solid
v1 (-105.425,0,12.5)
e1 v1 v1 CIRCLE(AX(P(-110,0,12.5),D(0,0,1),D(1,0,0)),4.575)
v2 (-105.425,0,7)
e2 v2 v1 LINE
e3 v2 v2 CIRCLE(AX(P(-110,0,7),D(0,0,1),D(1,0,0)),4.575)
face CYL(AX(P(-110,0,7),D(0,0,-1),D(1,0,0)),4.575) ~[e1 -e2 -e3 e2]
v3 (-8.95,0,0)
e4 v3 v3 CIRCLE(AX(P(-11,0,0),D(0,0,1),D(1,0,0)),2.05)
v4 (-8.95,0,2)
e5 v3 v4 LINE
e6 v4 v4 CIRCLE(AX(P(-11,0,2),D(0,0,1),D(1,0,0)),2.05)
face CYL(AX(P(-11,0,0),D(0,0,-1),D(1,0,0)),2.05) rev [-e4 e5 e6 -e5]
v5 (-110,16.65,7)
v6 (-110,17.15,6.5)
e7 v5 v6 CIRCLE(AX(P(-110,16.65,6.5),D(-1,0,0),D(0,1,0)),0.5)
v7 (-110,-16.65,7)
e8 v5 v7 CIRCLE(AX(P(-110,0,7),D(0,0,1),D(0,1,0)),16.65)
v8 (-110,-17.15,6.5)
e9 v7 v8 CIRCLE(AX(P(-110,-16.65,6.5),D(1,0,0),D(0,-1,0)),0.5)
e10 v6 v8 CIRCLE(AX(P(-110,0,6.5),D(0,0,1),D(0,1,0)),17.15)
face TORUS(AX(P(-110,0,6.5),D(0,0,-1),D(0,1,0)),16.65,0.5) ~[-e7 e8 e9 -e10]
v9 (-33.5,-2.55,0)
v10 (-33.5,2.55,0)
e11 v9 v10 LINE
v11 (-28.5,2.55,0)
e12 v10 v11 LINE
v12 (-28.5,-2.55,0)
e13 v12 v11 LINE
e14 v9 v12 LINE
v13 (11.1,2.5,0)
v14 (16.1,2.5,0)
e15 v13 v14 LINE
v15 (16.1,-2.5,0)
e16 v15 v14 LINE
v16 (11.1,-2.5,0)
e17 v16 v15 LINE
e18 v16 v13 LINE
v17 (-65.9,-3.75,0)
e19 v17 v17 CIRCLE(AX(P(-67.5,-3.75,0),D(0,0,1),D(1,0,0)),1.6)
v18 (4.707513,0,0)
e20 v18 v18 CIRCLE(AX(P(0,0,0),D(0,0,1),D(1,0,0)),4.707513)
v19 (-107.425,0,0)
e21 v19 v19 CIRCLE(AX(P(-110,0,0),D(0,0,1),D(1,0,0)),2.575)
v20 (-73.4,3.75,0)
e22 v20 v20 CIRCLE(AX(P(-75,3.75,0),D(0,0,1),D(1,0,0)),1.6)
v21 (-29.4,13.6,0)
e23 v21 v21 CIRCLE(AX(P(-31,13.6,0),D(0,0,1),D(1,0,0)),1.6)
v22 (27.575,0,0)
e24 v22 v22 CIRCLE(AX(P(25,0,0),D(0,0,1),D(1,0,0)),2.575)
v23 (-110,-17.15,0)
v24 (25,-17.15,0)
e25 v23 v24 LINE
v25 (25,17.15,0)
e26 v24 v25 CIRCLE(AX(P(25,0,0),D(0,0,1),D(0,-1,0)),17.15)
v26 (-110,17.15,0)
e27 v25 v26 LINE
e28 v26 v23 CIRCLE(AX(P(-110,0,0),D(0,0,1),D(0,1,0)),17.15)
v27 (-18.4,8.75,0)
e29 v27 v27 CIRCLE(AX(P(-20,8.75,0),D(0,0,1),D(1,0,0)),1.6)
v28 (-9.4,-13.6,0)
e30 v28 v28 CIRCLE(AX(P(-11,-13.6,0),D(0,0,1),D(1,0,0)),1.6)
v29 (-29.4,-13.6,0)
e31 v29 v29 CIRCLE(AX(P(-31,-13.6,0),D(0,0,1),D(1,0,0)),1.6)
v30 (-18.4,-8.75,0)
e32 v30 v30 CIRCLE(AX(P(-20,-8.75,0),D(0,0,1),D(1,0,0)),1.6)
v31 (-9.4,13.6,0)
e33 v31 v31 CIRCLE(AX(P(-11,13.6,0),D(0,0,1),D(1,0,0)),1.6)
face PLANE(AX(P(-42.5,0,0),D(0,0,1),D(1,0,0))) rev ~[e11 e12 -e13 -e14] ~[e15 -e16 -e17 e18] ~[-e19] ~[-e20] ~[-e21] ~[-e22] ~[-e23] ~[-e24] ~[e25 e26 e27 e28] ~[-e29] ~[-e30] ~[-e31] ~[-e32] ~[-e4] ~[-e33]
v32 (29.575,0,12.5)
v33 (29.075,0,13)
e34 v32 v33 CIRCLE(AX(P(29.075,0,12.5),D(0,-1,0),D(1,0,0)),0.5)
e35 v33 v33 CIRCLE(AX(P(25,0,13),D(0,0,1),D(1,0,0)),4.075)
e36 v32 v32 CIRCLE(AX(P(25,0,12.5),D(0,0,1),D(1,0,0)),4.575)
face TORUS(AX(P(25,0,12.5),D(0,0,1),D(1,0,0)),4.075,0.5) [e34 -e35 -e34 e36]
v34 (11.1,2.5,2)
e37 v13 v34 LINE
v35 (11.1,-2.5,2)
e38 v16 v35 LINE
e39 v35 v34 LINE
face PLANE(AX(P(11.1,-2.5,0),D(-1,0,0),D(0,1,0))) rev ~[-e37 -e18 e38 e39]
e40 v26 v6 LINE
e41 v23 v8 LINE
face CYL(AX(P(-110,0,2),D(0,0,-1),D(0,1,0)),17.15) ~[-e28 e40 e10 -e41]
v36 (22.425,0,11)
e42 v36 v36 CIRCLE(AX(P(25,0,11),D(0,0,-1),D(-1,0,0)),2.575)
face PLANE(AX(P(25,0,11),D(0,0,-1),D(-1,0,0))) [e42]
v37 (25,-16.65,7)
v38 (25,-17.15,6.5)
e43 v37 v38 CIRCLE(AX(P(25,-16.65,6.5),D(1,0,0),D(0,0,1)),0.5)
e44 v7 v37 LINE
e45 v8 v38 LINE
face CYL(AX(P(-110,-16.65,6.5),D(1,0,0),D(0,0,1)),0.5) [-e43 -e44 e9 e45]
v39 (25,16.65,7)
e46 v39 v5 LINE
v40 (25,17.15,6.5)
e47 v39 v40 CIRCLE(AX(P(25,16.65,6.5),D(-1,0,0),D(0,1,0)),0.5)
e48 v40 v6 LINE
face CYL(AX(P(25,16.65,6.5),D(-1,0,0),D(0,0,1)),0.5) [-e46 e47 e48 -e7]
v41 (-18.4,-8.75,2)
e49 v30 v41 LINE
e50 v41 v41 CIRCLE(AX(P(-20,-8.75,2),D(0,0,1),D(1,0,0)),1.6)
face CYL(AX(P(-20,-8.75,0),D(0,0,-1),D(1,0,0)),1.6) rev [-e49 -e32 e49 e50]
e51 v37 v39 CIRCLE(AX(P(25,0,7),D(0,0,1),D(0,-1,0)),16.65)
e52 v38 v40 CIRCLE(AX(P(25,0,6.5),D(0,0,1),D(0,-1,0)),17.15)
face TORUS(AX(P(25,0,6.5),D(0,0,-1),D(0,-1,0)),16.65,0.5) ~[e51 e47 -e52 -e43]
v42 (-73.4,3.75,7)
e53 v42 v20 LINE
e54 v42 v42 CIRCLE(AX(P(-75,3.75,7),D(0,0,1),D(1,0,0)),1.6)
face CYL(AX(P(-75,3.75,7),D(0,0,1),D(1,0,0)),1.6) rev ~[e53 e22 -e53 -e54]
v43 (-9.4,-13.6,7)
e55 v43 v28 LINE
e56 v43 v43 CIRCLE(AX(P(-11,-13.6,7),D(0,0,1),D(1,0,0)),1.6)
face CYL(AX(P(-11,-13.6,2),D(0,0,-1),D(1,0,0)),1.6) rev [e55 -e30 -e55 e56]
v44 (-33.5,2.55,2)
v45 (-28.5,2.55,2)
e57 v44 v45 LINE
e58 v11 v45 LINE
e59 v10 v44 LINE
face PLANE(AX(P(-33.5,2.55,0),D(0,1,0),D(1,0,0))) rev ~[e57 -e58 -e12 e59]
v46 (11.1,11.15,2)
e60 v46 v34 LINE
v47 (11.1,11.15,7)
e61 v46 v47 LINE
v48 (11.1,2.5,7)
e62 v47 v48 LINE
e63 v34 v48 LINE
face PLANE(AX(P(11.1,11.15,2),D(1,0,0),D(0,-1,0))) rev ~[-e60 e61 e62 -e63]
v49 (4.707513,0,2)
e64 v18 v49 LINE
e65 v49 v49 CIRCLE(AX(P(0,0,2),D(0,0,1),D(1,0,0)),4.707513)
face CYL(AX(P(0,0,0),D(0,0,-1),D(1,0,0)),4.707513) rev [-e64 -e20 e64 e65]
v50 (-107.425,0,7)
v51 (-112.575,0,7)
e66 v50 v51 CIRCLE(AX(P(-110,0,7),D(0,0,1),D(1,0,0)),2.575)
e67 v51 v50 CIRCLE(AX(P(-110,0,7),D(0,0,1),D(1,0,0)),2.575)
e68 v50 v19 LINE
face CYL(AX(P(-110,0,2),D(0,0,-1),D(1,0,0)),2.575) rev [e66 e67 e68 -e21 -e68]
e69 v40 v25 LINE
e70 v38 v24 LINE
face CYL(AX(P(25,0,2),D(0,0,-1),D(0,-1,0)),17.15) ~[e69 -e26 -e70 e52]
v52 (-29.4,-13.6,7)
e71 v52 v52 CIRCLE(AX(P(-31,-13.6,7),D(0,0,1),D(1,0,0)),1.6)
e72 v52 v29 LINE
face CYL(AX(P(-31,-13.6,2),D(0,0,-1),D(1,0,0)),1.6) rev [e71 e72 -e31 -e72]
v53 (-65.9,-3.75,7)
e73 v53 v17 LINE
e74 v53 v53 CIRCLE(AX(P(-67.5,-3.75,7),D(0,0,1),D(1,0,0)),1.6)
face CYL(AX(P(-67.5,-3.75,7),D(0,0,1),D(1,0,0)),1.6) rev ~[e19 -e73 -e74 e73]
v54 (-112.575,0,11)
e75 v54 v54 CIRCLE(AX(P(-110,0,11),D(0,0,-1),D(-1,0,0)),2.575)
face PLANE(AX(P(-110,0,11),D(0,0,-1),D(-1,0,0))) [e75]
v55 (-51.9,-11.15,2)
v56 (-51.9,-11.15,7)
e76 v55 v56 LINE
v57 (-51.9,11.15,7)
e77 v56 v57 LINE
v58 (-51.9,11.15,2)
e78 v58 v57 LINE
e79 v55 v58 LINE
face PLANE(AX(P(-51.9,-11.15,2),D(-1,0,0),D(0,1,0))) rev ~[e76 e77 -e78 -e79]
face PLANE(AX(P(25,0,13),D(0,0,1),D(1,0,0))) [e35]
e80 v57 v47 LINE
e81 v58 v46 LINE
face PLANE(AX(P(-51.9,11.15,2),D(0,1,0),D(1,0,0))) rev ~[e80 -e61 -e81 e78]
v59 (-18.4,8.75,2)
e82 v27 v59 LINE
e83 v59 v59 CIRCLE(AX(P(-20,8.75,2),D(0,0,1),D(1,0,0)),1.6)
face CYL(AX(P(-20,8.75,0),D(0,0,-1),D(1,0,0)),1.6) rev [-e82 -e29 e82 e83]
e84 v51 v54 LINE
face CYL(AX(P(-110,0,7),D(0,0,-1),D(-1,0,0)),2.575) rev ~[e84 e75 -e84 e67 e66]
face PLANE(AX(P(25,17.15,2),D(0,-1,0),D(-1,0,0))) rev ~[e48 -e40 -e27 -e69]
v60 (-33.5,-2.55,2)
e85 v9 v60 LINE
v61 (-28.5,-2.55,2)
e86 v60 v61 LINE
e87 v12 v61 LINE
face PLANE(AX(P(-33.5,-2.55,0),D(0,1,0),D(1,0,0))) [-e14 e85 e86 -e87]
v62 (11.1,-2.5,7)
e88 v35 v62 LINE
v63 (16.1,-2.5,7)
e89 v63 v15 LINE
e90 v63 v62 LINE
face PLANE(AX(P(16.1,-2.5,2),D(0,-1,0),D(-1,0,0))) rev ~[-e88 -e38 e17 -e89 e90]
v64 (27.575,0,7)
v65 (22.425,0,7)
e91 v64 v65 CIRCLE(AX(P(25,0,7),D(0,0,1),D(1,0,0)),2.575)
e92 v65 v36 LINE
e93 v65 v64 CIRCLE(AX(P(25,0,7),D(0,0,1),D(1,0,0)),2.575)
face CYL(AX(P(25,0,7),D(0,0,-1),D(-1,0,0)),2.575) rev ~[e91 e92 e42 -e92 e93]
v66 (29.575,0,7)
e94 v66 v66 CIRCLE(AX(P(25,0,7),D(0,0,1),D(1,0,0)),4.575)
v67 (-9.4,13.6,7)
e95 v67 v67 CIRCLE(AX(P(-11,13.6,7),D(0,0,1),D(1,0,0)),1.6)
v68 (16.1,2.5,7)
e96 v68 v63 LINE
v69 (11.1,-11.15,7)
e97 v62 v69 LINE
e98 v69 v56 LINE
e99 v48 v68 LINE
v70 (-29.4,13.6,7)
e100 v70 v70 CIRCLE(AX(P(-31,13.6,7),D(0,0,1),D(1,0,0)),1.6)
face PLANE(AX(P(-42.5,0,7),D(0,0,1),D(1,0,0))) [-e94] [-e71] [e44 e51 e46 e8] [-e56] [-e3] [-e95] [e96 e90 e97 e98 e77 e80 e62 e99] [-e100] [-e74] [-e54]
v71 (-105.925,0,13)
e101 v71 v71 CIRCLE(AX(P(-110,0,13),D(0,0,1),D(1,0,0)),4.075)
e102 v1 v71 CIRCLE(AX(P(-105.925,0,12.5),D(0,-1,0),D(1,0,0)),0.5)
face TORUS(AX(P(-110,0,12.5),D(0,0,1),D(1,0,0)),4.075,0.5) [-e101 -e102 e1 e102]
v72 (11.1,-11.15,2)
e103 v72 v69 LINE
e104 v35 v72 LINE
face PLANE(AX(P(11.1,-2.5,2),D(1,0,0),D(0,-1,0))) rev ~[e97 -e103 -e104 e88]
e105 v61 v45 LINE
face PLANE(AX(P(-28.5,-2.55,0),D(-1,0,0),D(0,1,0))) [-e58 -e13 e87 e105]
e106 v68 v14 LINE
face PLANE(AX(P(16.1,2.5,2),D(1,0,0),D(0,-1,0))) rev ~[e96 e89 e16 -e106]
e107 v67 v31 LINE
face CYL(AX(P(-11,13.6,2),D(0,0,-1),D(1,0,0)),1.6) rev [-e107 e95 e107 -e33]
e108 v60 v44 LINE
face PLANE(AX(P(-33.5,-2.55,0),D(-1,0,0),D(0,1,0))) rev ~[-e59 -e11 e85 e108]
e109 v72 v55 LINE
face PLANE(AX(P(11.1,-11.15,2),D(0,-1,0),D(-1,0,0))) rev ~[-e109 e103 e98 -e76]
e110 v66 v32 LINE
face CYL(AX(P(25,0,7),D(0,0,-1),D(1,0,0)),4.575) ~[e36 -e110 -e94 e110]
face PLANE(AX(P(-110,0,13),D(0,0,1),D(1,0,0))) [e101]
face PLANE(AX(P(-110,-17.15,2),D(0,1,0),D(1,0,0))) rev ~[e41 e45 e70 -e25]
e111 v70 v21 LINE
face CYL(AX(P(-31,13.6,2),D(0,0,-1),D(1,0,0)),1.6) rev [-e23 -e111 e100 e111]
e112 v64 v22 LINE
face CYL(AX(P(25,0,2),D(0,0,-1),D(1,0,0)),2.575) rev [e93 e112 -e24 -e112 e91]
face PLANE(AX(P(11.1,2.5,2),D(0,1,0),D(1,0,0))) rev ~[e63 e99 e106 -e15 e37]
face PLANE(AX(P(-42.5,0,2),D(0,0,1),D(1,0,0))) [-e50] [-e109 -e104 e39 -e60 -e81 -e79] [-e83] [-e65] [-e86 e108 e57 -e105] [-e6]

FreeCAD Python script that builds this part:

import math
import FreeCAD as App
import Part
import Sketcher
Q = App.Units.Quantity


def edges_at(feature, points):
    """Names of the edges that pass closest to the given points."""
    edges = feature.Shape.Edges
    near = lambda p: min(range(len(edges)), key=lambda i: edges[i].distToShape(Part.Vertex(*p))[0])
    return sorted({f"Edge{near(p) + 1}" for p in points})


def add_polygon(sketch, points):
    """Adds a closed chain of lines whose ends are joined by coincident constraints."""
    first, n = sketch.GeometryCount, len(points)
    for a, b in zip(points, points[1:] + points[:1]):
        sketch.addGeometry(Part.LineSegment(App.Vector(*a, 0), App.Vector(*b, 0)), False)
    for i in range(n):
        sketch.addConstraint(Sketcher.Constraint("Coincident", first + i, 2, first + (i + 1) % n, 1))

doc = App.newDocument("Part")
params = doc.addObject("Spreadsheet::Sheet", "Params")
for row, (alias, value) in enumerate([
    ("sketch1_diameter", "3.2 mm"),
    ("sketch1_diameter2", "4.1 mm"),
    ("sketch1_diameter3", "5.15 mm"),
    ("sketch1_width", "135 mm"),
    ("sketch1_width2", "5 mm"),
    ("pad1_length", "2 mm"),
    ("sketch2_diameter", "3.2 mm"),
    ("sketch2_diameter2", "5.15 mm"),
    ("sketch2_width", "135 mm"),
    ("sketch2_width2", "63 mm"),
    ("sketch2_width3", "5 mm"),
    ("pad2_length", "5 mm"),
    ("sketch3_diameter", "3.2 mm"),
    ("sketch4_diameter", "9.15 mm"),
    ("pad3_length", "6 mm"),
    ("sketch5_diameter", "5.15 mm"),
    ("pocket2_length", "4 mm"),
    ("fillet_radius", "0.5 mm"),
], start=1):
    params.set(f"A{row}", alias)
    params.set(f"B{row}", "=" + value)
    params.setAlias(f"B{row}", alias)

body = doc.addObject("PartDesign::Body", "Body")

sketch1 = body.newObject("Sketcher::SketchObject", "Sketch")
sketch1.AttachmentSupport = (doc.getObject("XY_Plane"), [""])
sketch1.MapMode = "FlatFace"
sketch1.addGeometry(Part.LineSegment(App.Vector(25, 17.15, 0), App.Vector(-110, 17.15, 0)), False)
sketch1.addGeometry(Part.ArcOfCircle(Part.Circle(App.Vector(-110, 0, 0), App.Vector(0, 0, 1), 17.15), math.radians(90), math.radians(270)), False)
sketch1.addGeometry(Part.LineSegment(App.Vector(-110, -17.15, 0), App.Vector(25, -17.15, 0)), False)
sketch1.addGeometry(Part.ArcOfCircle(Part.Circle(App.Vector(25, 0, 0), App.Vector(0, 0, 1), 17.15), math.radians(-90), math.radians(90)), False)
sketch1.addGeometry(Part.Circle(App.Vector(-110, 0, 0), App.Vector(0, 0, 1), 2.575), False)
sketch1.addGeometry(Part.Circle(App.Vector(-31, -13.6, 0), App.Vector(0, 0, 1), 1.6), False)
sketch1.addGeometry(Part.Circle(App.Vector(-11, -13.6, 0), App.Vector(0, 0, 1), 1.6), False)
sketch1.addGeometry(Part.Circle(App.Vector(-20, -8.75, 0), App.Vector(0, 0, 1), 1.6), False)
add_polygon(sketch1, [(-28.5, -2.55), (-33.5, -2.55), (-33.5, 2.55), (-28.5, 2.55)])
sketch1.addGeometry(Part.Circle(App.Vector(-11, 0, 0), App.Vector(0, 0, 1), 2.05), False)
sketch1.addGeometry(Part.Circle(App.Vector(0, 0, 0), App.Vector(0, 0, 1), 4.707513), False)
add_polygon(sketch1, [(16.1, -2.5), (11.1, -2.5), (11.1, 2.5), (16.1, 2.5)])
sketch1.addGeometry(Part.Circle(App.Vector(25, 0, 0), App.Vector(0, 0, 1), 2.575), False)
sketch1.addGeometry(Part.Circle(App.Vector(-20, 8.75, 0), App.Vector(0, 0, 1), 1.6), False)
sketch1.addGeometry(Part.Circle(App.Vector(-31, 13.6, 0), App.Vector(0, 0, 1), 1.6), False)
sketch1.addGeometry(Part.Circle(App.Vector(-11, 13.6, 0), App.Vector(0, 0, 1), 1.6), False)
sketch1.addConstraint([
    Sketcher.Constraint("Tangent", 0, 2, 1, 1),
    Sketcher.Constraint("Tangent", 1, 2, 2, 1),
    Sketcher.Constraint("Tangent", 2, 2, 3, 1),
    Sketcher.Constraint("Tangent", 3, 2, 0, 1),
    Sketcher.Constraint("Horizontal", 0),
    Sketcher.Constraint("Horizontal", 2),
    Sketcher.Constraint("Horizontal", 8),
    Sketcher.Constraint("Vertical", 9),
    Sketcher.Constraint("Horizontal", 10),
    Sketcher.Constraint("Vertical", 11),
    Sketcher.Constraint("Horizontal", 14),
    Sketcher.Constraint("Vertical", 15),
    Sketcher.Constraint("Horizontal", 16),
    Sketcher.Constraint("Vertical", 17),
    Sketcher.Constraint("Coincident", 13, 3, -1, 1),
    Sketcher.Constraint("Coincident", 4, 3, 1, 3),
    Sketcher.Constraint("Coincident", 18, 3, 3, 3),
    Sketcher.Constraint("Equal", 5, 6),
    Sketcher.Constraint("Equal", 6, 7),
    Sketcher.Constraint("Equal", 4, 18),
    Sketcher.Constraint("Equal", 7, 19),
    Sketcher.Constraint("Equal", 19, 20),
    Sketcher.Constraint("Equal", 20, 21),
    Sketcher.Constraint("Symmetric", 7, 3, 19, 3, -1),
    Sketcher.Constraint("Symmetric", 5, 3, 20, 3, -1),
    Sketcher.Constraint("Symmetric", 6, 3, 21, 3, -1),
    Sketcher.Constraint("PointOnObject", 1, 3, -1),
    Sketcher.Constraint("PointOnObject", 12, 3, -1),
    Sketcher.Constraint("Horizontal", 5, 3, 6, 3),
    Sketcher.Constraint("Vertical", 6, 3, 12, 3),
    Sketcher.Constraint("Equal", 10, 14),
    Sketcher.Constraint("Equal", 16, 15),
    Sketcher.Constraint("Diameter", 5, Q("3.2 mm")),
    Sketcher.Constraint("Diameter", 12, Q("4.1 mm")),
    Sketcher.Constraint("Diameter", 4, Q("5.15 mm")),
    Sketcher.Constraint("DistanceX", 0, 2, 0, 1, Q("135 mm")),
    Sketcher.Constraint("DistanceX", 8, 2, 8, 1, Q("5 mm")),
    Sketcher.Constraint("Radius", 1, Q("17.15 mm")),
    Sketcher.Constraint("DistanceY", 9, 1, 9, 2, Q("5.1 mm")),
    Sketcher.Constraint("DistanceX", 1, 3, -1, 1, Q("110 mm")),
    Sketcher.Constraint("DistanceX", 5, 3, -1, 1, Q("31 mm")),
    Sketcher.Constraint("DistanceX", 6, 3, -1, 1, Q("11 mm")),
    Sketcher.Constraint("DistanceX", 7, 3, -1, 1, Q("20 mm")),
    Sketcher.Constraint("DistanceY", 5, 3, -1, 1, Q("13.6 mm")),
    Sketcher.Constraint("DistanceX", 8, 2, -1, 1, Q("33.5 mm")),
    Sketcher.Constraint("DistanceX", -1, 1, 14, 2, Q("11.1 mm")),
    Sketcher.Constraint("DistanceY", 14, 2, -1, 1, Q("2.5 mm")),
    Sketcher.Constraint("DistanceY", 7, 3, 19, 3, Q("17.5 mm")),
    Sketcher.Constraint("DistanceY", 7, 3, 8, 2, Q("6.2 mm")),
    Sketcher.Constraint("Diameter", 13, Q("9.415025 mm")),
])
sketch1.setExpression("Constraints[40]", "Params.sketch1_diameter")
sketch1.setExpression("Constraints[41]", "Params.sketch1_diameter2")
sketch1.setExpression("Constraints[42]", "Params.sketch1_diameter3")
sketch1.setExpression("Constraints[43]", "Params.sketch1_width")
sketch1.setExpression("Constraints[44]", "Params.sketch1_width2")
pad1 = body.newObject("PartDesign::Pad", "Pad")
pad1.Profile = sketch1
pad1.setExpression("Length", "Params.pad1_length")

sketch2 = body.newObject("Sketcher::SketchObject", "Sketch001")
sketch2.AttachmentSupport = (doc.getObject("XY_Plane"), [""])
sketch2.MapMode = "FlatFace"
sketch2.AttachmentOffset = App.Placement(App.Vector(0, 0, 2), App.Rotation())
sketch2.addGeometry(Part.LineSegment(App.Vector(25, 17.15, 0), App.Vector(-110, 17.15, 0)), False)
sketch2.addGeometry(Part.ArcOfCircle(Part.Circle(App.Vector(-110, 0, 0), App.Vector(0, 0, 1), 17.15), math.radians(90), math.radians(270)), False)
sketch2.addGeometry(Part.LineSegment(App.Vector(-110, -17.15, 0), App.Vector(25, -17.15, 0)), False)
sketch2.addGeometry(Part.ArcOfCircle(Part.Circle(App.Vector(25, 0, 0), App.Vector(0, 0, 1), 17.15), math.radians(-90), math.radians(90)), False)
sketch2.addGeometry(Part.Circle(App.Vector(-110, 0, 0), App.Vector(0, 0, 1), 2.575), False)
sketch2.addGeometry(Part.Circle(App.Vector(-31, -13.6, 0), App.Vector(0, 0, 1), 1.6), False)
sketch2.addGeometry(Part.Circle(App.Vector(-11, -13.6, 0), App.Vector(0, 0, 1), 1.6), False)
sketch2.addGeometry(Part.Circle(App.Vector(25, 0, 0), App.Vector(0, 0, 1), 2.575), False)
add_polygon(sketch2, [(11.1, -11.15), (-51.9, -11.15), (-51.9, 11.15), (11.1, 11.15), (11.1, 2.5), (16.1, 2.5), (16.1, -2.5), (11.1, -2.5)])
sketch2.addGeometry(Part.Circle(App.Vector(-31, 13.6, 0), App.Vector(0, 0, 1), 1.6), False)
sketch2.addGeometry(Part.Circle(App.Vector(-11, 13.6, 0), App.Vector(0, 0, 1), 1.6), False)
sketch2.addConstraint([
    Sketcher.Constraint("Tangent", 0, 2, 1, 1),
    Sketcher.Constraint("Tangent", 1, 2, 2, 1),
    Sketcher.Constraint("Tangent", 2, 2, 3, 1),
    Sketcher.Constraint("Tangent", 3, 2, 0, 1),
    Sketcher.Constraint("Horizontal", 0),
    Sketcher.Constraint("Horizontal", 2),
    Sketcher.Constraint("Horizontal", 8),
    Sketcher.Constraint("Vertical", 9),
    Sketcher.Constraint("Horizontal", 10),
    Sketcher.Constraint("Vertical", 11),
    Sketcher.Constraint("Horizontal", 12),
    Sketcher.Constraint("Vertical", 13),
    Sketcher.Constraint("Horizontal", 14),
    Sketcher.Constraint("Vertical", 15),
    Sketcher.Constraint("Coincident", 4, 3, 1, 3),
    Sketcher.Constraint("Coincident", 7, 3, 3, 3),
    Sketcher.Constraint("Equal", 5, 6),
    Sketcher.Constraint("Equal", 4, 7),
    Sketcher.Constraint("Equal", 6, 16),
    Sketcher.Constraint("Equal", 16, 17),
    Sketcher.Constraint("Symmetric", 5, 3, 16, 3, -1),
    Sketcher.Constraint("Symmetric", 6, 3, 17, 3, -1),
    Sketcher.Constraint("Symmetric", 11, 2, 14, 2, -1),
    Sketcher.Constraint("PointOnObject", 1, 3, -1),
    Sketcher.Constraint("Horizontal", 5, 3, 6, 3),
    Sketcher.Constraint("Equal", 14, 13),
    Sketcher.Constraint("Equal", 11, 15),
    Sketcher.Constraint("Diameter", 5, Q("3.2 mm")),
    Sketcher.Constraint("Diameter", 4, Q("5.15 mm")),
    Sketcher.Constraint("DistanceX", 0, 2, 0, 1, Q("135 mm")),
    Sketcher.Constraint("DistanceX", 8, 2, 8, 1, Q("63 mm")),
    Sketcher.Constraint("DistanceX", 12, 1, 12, 2, Q("5 mm")),
    Sketcher.Constraint("Radius", 1, Q("17.15 mm")),
    Sketcher.Constraint("DistanceY", 9, 1, 9, 2, Q("22.3 mm")),
    Sketcher.Constraint("DistanceX", 1, 3, -1, 1, Q("110 mm")),
    Sketcher.Constraint("DistanceX", 5, 3, -1, 1, Q("31 mm")),
    Sketcher.Constraint("DistanceX", 6, 3, -1, 1, Q("11 mm")),
    Sketcher.Constraint("DistanceY", 5, 3, -1, 1, Q("13.6 mm")),
    Sketcher.Constraint("DistanceX", 8, 2, -1, 1, Q("51.9 mm")),
])
sketch2.setExpression("Constraints[35]", "Params.sketch2_diameter")
sketch2.setExpression("Constraints[36]", "Params.sketch2_diameter2")
sketch2.setExpression("Constraints[37]", "Params.sketch2_width")
sketch2.setExpression("Constraints[38]", "Params.sketch2_width2")
sketch2.setExpression("Constraints[39]", "Params.sketch2_width3")
pad2 = body.newObject("PartDesign::Pad", "Pad001")
pad2.Profile = sketch2
pad2.setExpression("Length", "Params.pad2_length")

sketch3 = body.newObject("Sketcher::SketchObject", "Sketch002")
sketch3.AttachmentSupport = (doc.getObject("XY_Plane"), [""])
sketch3.MapMode = "FlatFace"
sketch3.AttachmentOffset = App.Placement(App.Vector(0, 0, 7), App.Rotation())
sketch3.addGeometry([
    Part.Circle(App.Vector(-75, 3.75, 0), App.Vector(0, 0, 1), 1.6),
    Part.Circle(App.Vector(-67.5, -3.75, 0), App.Vector(0, 0, 1), 1.6),
], False)
sketch3.addConstraint([
    Sketcher.Constraint("Equal", 0, 1),
    Sketcher.Constraint("Diameter", 0, Q("3.2 mm")),
    Sketcher.Constraint("DistanceX", 0, 3, -1, 1, Q("75 mm")),
    Sketcher.Constraint("DistanceX", 1, 3, -1, 1, Q("67.5 mm")),
    Sketcher.Constraint("DistanceY", 1, 3, 0, 3, Q("7.5 mm")),
    Sketcher.Constraint("DistanceY", -1, 1, 0, 3, Q("3.75 mm")),
])
sketch3.setExpression("Constraints[1]", "Params.sketch3_diameter")
pocket1 = body.newObject("PartDesign::Pocket", "Pocket")
pocket1.Profile = sketch3
pocket1.Type = "ThroughAll"

sketch4 = body.newObject("Sketcher::SketchObject", "Sketch003")
sketch4.AttachmentSupport = (doc.getObject("XY_Plane"), [""])
sketch4.MapMode = "FlatFace"
sketch4.AttachmentOffset = App.Placement(App.Vector(0, 0, 7), App.Rotation())
sketch4.addGeometry([
    Part.Circle(App.Vector(-110, 0, 0), App.Vector(0, 0, 1), 4.575),
    Part.Circle(App.Vector(25, 0, 0), App.Vector(0, 0, 1), 4.575),
], False)
sketch4.addConstraint([
    Sketcher.Constraint("Equal", 0, 1),
    Sketcher.Constraint("PointOnObject", 0, 3, -1),
    Sketcher.Constraint("PointOnObject", 1, 3, -1),
    Sketcher.Constraint("Diameter", 0, Q("9.15 mm")),
    Sketcher.Constraint("DistanceX", 0, 3, -1, 1, Q("110 mm")),
    Sketcher.Constraint("DistanceX", -1, 1, 1, 3, Q("25 mm")),
])
sketch4.setExpression("Constraints[3]", "Params.sketch4_diameter")
pad3 = body.newObject("PartDesign::Pad", "Pad002")
pad3.Profile = sketch4
pad3.setExpression("Length", "Params.pad3_length")

sketch5 = body.newObject("Sketcher::SketchObject", "Sketch004")
sketch5.AttachmentSupport = (doc.getObject("XY_Plane"), [""])
sketch5.MapMode = "FlatFace"
sketch5.AttachmentOffset = App.Placement(App.Vector(0, 0, 7), App.Rotation())
sketch5.addGeometry([
    Part.Circle(App.Vector(25, 0, 0), App.Vector(0, 0, 1), 2.575),
    Part.Circle(App.Vector(-110, 0, 0), App.Vector(0, 0, 1), 2.575),
], False)
sketch5.addConstraint([
    Sketcher.Constraint("Equal", 0, 1),
    Sketcher.Constraint("PointOnObject", 0, 3, -1),
    Sketcher.Constraint("PointOnObject", 1, 3, -1),
    Sketcher.Constraint("Diameter", 0, Q("5.15 mm")),
    Sketcher.Constraint("DistanceX", -1, 1, 0, 3, Q("25 mm")),
    Sketcher.Constraint("DistanceX", 1, 3, -1, 1, Q("110 mm")),
])
sketch5.setExpression("Constraints[3]", "Params.sketch5_diameter")
pocket2 = body.newObject("PartDesign::Pocket", "Pocket001")
pocket2.Profile = sketch5
pocket2.setExpression("Length", "Params.pocket2_length")
pocket2.Reversed = True
doc.recompute()

fillet = body.newObject("PartDesign::Fillet", "Fillet")
fillet.Base = (pocket2, edges_at(pocket2, [
    (-114.575, 0, 13),
    (20.425, 0, 13),
    (-127.15, 0, 7),
    (-42.5, -17.15, 7),
    (42.15, 0, 7),
    (-42.5, 17.15, 7),
]))
fillet.setExpression("Radius", "Params.fillet_radius")

doc.recompute()
